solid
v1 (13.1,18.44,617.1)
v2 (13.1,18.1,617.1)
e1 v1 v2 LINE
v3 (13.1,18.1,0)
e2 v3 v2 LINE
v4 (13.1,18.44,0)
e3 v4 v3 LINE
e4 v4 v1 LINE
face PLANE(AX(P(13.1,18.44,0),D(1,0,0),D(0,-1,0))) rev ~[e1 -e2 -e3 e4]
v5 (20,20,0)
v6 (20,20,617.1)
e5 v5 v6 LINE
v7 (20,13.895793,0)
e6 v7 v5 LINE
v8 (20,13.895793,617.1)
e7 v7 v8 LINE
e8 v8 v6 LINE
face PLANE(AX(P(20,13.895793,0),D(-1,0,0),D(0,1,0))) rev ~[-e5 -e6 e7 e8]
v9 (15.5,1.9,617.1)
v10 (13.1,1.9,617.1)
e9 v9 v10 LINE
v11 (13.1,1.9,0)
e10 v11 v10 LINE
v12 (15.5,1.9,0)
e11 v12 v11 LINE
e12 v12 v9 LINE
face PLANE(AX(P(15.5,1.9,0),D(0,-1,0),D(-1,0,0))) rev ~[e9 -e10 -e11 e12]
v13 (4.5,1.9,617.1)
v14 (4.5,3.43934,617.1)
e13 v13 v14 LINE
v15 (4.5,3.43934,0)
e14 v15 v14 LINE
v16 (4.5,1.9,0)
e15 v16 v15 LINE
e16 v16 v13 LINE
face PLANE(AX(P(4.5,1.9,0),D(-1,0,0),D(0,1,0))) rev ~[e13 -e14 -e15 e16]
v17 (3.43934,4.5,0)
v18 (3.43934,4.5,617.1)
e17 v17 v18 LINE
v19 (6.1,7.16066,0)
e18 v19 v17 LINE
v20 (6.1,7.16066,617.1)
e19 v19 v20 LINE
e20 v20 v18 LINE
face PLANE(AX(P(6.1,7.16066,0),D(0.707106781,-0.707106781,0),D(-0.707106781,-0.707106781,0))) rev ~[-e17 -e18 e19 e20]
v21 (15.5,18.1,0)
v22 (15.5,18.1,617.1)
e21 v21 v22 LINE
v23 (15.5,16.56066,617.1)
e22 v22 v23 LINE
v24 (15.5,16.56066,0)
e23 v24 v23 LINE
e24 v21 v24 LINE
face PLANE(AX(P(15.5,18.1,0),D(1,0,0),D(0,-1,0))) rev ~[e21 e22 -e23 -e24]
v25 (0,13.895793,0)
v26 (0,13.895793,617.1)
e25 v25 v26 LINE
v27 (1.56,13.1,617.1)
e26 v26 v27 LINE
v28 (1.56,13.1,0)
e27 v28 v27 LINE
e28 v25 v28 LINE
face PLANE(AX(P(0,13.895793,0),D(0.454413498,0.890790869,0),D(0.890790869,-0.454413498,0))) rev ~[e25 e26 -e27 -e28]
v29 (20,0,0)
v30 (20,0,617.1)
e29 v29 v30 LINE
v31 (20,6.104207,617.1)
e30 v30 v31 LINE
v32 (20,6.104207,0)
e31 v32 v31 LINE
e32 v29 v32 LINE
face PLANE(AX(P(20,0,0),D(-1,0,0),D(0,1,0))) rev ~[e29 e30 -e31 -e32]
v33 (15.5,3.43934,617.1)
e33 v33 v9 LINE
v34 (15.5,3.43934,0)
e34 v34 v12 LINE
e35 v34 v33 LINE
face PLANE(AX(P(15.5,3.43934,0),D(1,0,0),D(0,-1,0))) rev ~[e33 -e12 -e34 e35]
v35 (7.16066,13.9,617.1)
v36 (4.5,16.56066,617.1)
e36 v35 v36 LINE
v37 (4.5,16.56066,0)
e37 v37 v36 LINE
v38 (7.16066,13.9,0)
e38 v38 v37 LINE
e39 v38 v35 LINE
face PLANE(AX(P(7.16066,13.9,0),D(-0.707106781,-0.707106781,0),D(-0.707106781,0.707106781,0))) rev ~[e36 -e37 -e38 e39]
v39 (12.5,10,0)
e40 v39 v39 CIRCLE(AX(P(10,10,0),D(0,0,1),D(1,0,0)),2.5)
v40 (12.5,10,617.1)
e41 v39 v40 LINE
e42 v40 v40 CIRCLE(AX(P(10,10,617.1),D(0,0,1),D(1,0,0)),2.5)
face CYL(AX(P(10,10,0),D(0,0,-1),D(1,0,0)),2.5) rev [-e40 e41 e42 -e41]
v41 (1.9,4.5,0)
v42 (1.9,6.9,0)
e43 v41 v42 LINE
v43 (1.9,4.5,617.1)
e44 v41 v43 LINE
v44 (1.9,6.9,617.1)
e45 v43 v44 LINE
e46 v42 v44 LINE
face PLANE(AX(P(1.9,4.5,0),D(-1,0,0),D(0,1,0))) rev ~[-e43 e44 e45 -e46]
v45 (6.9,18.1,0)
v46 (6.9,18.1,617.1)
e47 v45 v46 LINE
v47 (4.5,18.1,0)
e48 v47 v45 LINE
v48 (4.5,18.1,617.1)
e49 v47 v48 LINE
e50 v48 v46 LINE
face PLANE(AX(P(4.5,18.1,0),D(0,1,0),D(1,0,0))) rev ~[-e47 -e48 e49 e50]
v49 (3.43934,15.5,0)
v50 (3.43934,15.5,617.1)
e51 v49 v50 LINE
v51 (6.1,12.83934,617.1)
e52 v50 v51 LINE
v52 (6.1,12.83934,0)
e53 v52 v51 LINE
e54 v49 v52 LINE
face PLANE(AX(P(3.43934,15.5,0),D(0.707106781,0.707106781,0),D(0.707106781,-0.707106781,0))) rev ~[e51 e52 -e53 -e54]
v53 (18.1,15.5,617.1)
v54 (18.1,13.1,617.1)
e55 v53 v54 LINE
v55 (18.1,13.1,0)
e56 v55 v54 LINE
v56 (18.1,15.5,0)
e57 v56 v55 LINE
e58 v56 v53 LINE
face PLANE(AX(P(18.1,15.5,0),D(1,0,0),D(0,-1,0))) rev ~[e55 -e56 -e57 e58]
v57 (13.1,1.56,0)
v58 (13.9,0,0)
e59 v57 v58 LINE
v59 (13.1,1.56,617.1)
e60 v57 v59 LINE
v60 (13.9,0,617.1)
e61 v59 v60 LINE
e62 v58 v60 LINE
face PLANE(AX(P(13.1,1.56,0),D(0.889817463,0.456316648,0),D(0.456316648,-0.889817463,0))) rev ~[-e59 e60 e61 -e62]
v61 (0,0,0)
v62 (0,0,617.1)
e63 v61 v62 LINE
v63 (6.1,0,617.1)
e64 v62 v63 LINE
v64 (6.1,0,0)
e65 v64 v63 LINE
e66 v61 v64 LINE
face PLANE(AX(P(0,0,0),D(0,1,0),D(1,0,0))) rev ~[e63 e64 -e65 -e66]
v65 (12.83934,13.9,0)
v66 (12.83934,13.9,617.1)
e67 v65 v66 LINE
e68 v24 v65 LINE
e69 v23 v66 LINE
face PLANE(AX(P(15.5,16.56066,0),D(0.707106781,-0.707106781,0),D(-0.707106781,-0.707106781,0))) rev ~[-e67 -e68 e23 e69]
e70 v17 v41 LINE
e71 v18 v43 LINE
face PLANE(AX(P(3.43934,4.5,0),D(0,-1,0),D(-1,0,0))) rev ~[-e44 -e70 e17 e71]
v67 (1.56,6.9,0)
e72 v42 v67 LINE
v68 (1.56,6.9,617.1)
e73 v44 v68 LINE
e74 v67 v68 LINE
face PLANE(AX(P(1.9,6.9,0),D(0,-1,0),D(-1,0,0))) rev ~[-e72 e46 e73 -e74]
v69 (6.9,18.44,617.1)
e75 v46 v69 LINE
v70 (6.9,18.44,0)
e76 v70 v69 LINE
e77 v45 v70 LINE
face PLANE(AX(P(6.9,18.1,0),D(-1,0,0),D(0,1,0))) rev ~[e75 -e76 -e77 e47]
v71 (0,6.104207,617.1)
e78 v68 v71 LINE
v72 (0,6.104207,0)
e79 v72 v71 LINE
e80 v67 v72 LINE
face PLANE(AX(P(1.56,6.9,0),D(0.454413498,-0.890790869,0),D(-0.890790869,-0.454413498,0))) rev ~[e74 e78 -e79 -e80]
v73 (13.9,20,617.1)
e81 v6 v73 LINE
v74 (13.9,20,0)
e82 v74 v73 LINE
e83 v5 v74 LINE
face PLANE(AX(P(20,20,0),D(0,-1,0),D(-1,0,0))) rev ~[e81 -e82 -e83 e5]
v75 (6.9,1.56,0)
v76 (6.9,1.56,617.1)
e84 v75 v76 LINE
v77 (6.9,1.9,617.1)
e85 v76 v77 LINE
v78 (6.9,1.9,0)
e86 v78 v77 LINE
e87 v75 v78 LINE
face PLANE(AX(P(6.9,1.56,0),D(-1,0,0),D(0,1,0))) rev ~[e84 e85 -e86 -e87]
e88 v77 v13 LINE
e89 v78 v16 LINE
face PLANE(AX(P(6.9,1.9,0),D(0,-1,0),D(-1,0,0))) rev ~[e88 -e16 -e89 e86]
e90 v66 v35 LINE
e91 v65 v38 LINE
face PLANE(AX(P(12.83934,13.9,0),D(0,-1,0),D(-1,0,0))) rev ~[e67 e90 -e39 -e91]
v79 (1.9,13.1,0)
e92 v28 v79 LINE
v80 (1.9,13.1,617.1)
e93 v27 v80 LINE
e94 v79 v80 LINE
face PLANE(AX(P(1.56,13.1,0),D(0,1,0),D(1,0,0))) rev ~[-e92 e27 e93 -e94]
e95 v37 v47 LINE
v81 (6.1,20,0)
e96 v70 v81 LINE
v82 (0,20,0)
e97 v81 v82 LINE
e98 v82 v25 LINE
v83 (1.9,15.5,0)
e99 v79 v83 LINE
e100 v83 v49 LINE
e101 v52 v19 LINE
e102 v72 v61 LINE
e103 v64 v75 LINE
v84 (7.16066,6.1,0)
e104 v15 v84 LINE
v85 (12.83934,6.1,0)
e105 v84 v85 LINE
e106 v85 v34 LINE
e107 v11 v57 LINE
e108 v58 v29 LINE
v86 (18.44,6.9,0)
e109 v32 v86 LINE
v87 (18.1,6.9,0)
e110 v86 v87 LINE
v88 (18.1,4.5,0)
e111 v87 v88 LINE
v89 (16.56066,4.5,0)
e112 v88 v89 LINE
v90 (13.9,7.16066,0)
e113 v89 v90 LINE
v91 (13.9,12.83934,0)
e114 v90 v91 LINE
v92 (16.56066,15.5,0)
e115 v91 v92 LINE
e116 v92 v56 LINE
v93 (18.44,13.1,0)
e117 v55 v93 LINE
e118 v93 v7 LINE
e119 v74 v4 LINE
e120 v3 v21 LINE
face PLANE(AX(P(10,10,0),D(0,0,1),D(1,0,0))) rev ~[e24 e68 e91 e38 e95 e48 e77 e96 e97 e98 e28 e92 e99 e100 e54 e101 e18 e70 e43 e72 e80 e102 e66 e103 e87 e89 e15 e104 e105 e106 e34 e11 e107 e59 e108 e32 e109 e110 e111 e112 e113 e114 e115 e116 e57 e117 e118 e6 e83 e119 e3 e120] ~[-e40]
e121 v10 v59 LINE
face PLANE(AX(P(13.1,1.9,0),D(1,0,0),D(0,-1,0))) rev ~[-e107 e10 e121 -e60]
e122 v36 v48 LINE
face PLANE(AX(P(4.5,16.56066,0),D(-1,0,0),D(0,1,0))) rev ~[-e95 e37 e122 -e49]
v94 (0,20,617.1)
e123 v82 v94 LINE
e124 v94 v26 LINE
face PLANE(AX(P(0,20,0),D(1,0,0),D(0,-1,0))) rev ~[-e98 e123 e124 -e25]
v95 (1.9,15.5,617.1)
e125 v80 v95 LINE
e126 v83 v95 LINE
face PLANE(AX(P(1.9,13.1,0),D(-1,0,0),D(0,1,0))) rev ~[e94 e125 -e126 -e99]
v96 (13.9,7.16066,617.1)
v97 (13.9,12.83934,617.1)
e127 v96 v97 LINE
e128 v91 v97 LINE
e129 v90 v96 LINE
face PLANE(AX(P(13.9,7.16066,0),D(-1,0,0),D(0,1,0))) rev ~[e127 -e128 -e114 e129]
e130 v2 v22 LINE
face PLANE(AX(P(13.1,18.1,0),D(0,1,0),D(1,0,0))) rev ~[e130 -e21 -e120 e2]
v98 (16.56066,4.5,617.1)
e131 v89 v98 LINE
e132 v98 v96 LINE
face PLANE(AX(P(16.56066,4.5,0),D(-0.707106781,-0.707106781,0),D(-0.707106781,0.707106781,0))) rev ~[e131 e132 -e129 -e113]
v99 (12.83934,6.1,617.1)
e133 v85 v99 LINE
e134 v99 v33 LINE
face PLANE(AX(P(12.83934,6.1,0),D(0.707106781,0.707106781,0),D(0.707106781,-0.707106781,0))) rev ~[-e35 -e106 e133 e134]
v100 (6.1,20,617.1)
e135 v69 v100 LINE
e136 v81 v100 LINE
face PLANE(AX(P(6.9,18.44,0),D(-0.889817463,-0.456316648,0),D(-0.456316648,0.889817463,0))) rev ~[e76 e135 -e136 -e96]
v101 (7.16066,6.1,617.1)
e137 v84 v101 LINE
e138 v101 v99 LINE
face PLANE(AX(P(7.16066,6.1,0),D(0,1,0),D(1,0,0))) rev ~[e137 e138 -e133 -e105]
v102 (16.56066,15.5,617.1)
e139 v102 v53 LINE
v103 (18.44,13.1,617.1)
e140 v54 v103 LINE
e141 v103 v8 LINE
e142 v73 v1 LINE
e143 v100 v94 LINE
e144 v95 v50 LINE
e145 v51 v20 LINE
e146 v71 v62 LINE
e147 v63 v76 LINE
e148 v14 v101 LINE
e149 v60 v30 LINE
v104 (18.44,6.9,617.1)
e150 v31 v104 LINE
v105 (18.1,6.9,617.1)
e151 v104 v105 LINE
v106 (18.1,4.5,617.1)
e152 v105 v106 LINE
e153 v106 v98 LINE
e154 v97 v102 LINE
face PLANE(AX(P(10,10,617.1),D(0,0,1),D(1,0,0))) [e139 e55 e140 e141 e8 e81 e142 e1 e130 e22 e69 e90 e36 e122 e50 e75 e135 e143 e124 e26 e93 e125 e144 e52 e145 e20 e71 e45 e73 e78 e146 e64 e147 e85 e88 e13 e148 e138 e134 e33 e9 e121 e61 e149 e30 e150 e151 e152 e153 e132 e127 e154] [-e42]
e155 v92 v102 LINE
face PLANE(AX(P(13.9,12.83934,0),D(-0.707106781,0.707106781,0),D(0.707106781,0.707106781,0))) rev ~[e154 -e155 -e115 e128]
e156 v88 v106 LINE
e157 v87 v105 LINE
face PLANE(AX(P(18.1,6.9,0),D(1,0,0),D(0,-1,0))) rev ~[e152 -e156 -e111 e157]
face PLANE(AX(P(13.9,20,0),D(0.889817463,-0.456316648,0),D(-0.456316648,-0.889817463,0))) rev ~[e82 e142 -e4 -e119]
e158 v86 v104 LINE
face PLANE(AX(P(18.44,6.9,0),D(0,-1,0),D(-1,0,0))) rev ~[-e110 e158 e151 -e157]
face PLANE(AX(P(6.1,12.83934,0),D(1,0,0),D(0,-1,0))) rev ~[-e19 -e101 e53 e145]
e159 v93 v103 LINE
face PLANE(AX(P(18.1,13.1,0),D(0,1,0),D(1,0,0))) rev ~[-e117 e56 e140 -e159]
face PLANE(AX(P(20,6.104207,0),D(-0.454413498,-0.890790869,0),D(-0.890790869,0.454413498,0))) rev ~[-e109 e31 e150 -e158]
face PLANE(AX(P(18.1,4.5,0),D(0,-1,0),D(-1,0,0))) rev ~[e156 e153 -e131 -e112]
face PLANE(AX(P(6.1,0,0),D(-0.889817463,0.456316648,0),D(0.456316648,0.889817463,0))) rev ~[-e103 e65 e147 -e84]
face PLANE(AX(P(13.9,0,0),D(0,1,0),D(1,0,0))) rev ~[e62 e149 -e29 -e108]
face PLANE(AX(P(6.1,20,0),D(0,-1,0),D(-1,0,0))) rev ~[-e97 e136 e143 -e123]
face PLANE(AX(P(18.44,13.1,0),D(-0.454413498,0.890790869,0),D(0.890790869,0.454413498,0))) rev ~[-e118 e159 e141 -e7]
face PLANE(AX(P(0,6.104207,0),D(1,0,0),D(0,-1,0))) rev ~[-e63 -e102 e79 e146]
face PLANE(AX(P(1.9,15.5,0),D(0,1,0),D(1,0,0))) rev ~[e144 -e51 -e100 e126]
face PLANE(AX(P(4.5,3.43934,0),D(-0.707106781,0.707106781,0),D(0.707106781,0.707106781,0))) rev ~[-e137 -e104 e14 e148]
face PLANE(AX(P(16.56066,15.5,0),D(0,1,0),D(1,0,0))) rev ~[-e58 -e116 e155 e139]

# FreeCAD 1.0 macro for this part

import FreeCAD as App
import Part
import Sketcher

V = App.Vector


def add_polygon(sketch, points):
    """Adds a closed chain of lines whose ends are joined by coincident constraints."""
    first, n = sketch.GeometryCount, len(points)
    for a, b in zip(points, points[1:] + points[:1]):
        sketch.addGeometry(Part.LineSegment(App.Vector(*a, 0), App.Vector(*b, 0)), False)
    for i in range(n):
        sketch.addConstraint(Sketcher.Constraint("Coincident", first + i, 2, first + (i + 1) % n, 1))

doc = App.newDocument("Part")
body = doc.addObject("PartDesign::Body", "Body")

# Sketch on XY plane
sketch1 = body.newObject("Sketcher::SketchObject", "Sketch")
sketch1.AttachmentSupport = (doc.getObject("XY_Plane"), [""])
sketch1.MapMode = "FlatFace"
add_polygon(sketch1, [(6.1, 20), (0, 20), (0, 13.895793), (1.56, 13.1), (1.9, 13.1), (1.9, 15.5), (3.43934, 15.5), (6.1, 12.83934), (6.1, 7.16066), (3.43934, 4.5), (1.9, 4.5), (1.9, 6.9), (1.56, 6.9), (0, 6.104207), (0, 0), (6.1, 0), (6.9, 1.56), (6.9, 1.9), (4.5, 1.9), (4.5, 3.43934), (7.16066, 6.1), (12.83934, 6.1), (15.5, 3.43934), (15.5, 1.9), (13.1, 1.9), (13.1, 1.56), (13.9, 0), (20, 0), (20, 6.104207), (18.44, 6.9), (18.1, 6.9), (18.1, 4.5), (16.56066, 4.5), (13.9, 7.16066), (13.9, 12.83934), (16.56066, 15.5), (18.1, 15.5), (18.1, 13.1), (18.44, 13.1), (20, 13.895793), (20, 20), (13.9, 20), (13.1, 18.44), (13.1, 18.1), (15.5, 18.1), (15.5, 16.56066), (12.83934, 13.9), (7.16066, 13.9), (4.5, 16.56066), (4.5, 18.1), (6.9, 18.1), (6.9, 18.44)])  # lines 0-51
sketch1.addGeometry(Part.Circle(V(10, 10, 0), V(0, 0, 1), 2.5), False)  # 52
sketch1.addConstraint([
    Sketcher.Constraint("Horizontal", 0),
    Sketcher.Constraint("Vertical", 1),
    Sketcher.Constraint("Horizontal", 3),
    Sketcher.Constraint("Vertical", 4),
    Sketcher.Constraint("Horizontal", 5),
    Sketcher.Constraint("Vertical", 7),
    Sketcher.Constraint("Horizontal", 9),
    Sketcher.Constraint("Vertical", 10),
    Sketcher.Constraint("Horizontal", 11),
    Sketcher.Constraint("Vertical", 13),
    Sketcher.Constraint("Horizontal", 14),
    Sketcher.Constraint("Vertical", 16),
    Sketcher.Constraint("Horizontal", 17),
    Sketcher.Constraint("Vertical", 18),
    Sketcher.Constraint("Horizontal", 20),
    Sketcher.Constraint("Vertical", 22),
    Sketcher.Constraint("Horizontal", 23),
    Sketcher.Constraint("Vertical", 24),
    Sketcher.Constraint("Horizontal", 26),
    Sketcher.Constraint("Vertical", 27),
    Sketcher.Constraint("Horizontal", 29),
    Sketcher.Constraint("Vertical", 30),
    Sketcher.Constraint("Horizontal", 31),
    Sketcher.Constraint("Vertical", 33),
    Sketcher.Constraint("Horizontal", 35),
    Sketcher.Constraint("Vertical", 36),
    Sketcher.Constraint("Horizontal", 37),
    Sketcher.Constraint("Vertical", 39),
    Sketcher.Constraint("Horizontal", 40),
    Sketcher.Constraint("Vertical", 42),
    Sketcher.Constraint("Horizontal", 43),
    Sketcher.Constraint("Vertical", 44),
    Sketcher.Constraint("Horizontal", 46),
    Sketcher.Constraint("Vertical", 48),
    Sketcher.Constraint("Horizontal", 49),
    Sketcher.Constraint("Vertical", 50),
    Sketcher.Constraint("Coincident", 13, 2, -1, 1),
    Sketcher.Constraint("PointOnObject", 0, 2, -2),
    Sketcher.Constraint("PointOnObject", 25, 2, -1),
    Sketcher.Constraint("Perpendicular", 6, 8),
    Sketcher.Constraint("Parallel", 8, 19),
    Sketcher.Constraint("Perpendicular", 19, 21),
    Sketcher.Constraint("Parallel", 2, 28),
    Sketcher.Constraint("Parallel", 21, 32),
    Sketcher.Constraint("Perpendicular", 32, 34),
    Sketcher.Constraint("Parallel", 12, 38),
    Sketcher.Constraint("Parallel", 15, 41),
    Sketcher.Constraint("Parallel", 34, 45),
    Sketcher.Constraint("Perpendicular", 45, 47),
    Sketcher.Constraint("Parallel", 25, 51),
    Sketcher.Constraint("Horizontal", 18, 2, 21, 2),
    Sketcher.Constraint("Horizontal", 17, 2, 22, 2),
    Sketcher.Constraint("Horizontal", 15, 2, 24, 2),
    Sketcher.Constraint("Horizontal", 12, 2, 27, 2),
    Sketcher.Constraint("Horizontal", 11, 2, 28, 2),
    Sketcher.Constraint("Horizontal", 9, 2, 30, 2),
    Sketcher.Constraint("Horizontal", 7, 2, 32, 2),
    Sketcher.Constraint("Horizontal", 6, 2, 33, 2),
    Sketcher.Constraint("Horizontal", 5, 2, 34, 2),
    Sketcher.Constraint("Horizontal", 3, 2, 36, 2),
    Sketcher.Constraint("Horizontal", 1, 2, 38, 2),
    Sketcher.Constraint("Horizontal", 0, 2, 39, 2),
    Sketcher.Constraint("Horizontal", 44, 2, 47, 2),
    Sketcher.Constraint("Horizontal", 43, 2, 48, 2),
    Sketcher.Constraint("Horizontal", 41, 2, 50, 2),
    Sketcher.Constraint("Vertical", 5, 2, 8, 2),
    Sketcher.Constraint("Vertical", 4, 2, 9, 2),
    Sketcher.Constraint("Vertical", 2, 2, 11, 2),
    Sketcher.Constraint("Vertical", 7, 2, 14, 2),
    Sketcher.Constraint("Vertical", 25, 2, 32, 2),
    Sketcher.Constraint("Vertical", 31, 2, 34, 2),
    Sketcher.Constraint("Vertical", 30, 2, 35, 2),
    Sketcher.Constraint("Vertical", 28, 2, 37, 2),
    Sketcher.Constraint("Vertical", 27, 2, 38, 2),
    Sketcher.Constraint("Vertical", 33, 2, 40, 2),
    Sketcher.Constraint("Vertical", 24, 2, 41, 2),
    Sketcher.Constraint("Vertical", 22, 2, 43, 2),
    Sketcher.Constraint("Vertical", 20, 2, 45, 2),
    Sketcher.Constraint("Vertical", 19, 2, 46, 2),
    Sketcher.Constraint("Vertical", 16, 2, 49, 2),
    Sketcher.Constraint("Vertical", 14, 2, 51, 2),
    Sketcher.Constraint("Equal", 17, 23),
    Sketcher.Constraint("Equal", 14, 26),
    Sketcher.Constraint("Equal", 11, 29),
    Sketcher.Constraint("Equal", 49, 4),
    Sketcher.Constraint("Equal", 46, 7),
    Sketcher.Constraint("Equal", 4, 10),
    Sketcher.Constraint("Equal", 1, 13),
    Sketcher.Constraint("Equal", 37, 16),
    Sketcher.Constraint("Equal", 35, 18),
    Sketcher.Constraint("Equal", 24, 42),
    Sketcher.Constraint("Equal", 22, 44),
    Sketcher.Constraint("Equal", 8, 19),
    Sketcher.Constraint("Diameter", 52, 5.0),
    Sketcher.Constraint("DistanceX", 0, 2, 0, 1, 6.1),
    Sketcher.Constraint("DistanceX", 17, 2, 17, 1, 2.4),
    Sketcher.Constraint("DistanceX", -1, 1, 52, 3, 10.0),
    Sketcher.Constraint("DistanceY", -1, 1, 52, 3, 10.0),
    Sketcher.Constraint("DistanceY", -1, 1, 0, 2, 20.0),
    Sketcher.Constraint("DistanceX", -1, 1, 26, 2, 20.0),
    Sketcher.Constraint("DistanceX", 9, 2, 15, 2, 5.0),
    Sketcher.Constraint("DistanceY", 22, 2, 28, 2, 5.0),
    Sketcher.Constraint("DistanceX", 3, 1, 3, 2, 0.34),
    Sketcher.Constraint("DistanceY", -1, 1, 2, 2, 13.1),
    Sketcher.Constraint("DistanceX", 5, 1, 5, 2, 1.53934),
    Sketcher.Constraint("DistanceY", 1, 2, 1, 1, 6.104207),
])
pad1 = body.newObject("PartDesign::Pad", "Pad")
pad1.Profile = sketch1
pad1.Length = 617.1

doc.recompute()
